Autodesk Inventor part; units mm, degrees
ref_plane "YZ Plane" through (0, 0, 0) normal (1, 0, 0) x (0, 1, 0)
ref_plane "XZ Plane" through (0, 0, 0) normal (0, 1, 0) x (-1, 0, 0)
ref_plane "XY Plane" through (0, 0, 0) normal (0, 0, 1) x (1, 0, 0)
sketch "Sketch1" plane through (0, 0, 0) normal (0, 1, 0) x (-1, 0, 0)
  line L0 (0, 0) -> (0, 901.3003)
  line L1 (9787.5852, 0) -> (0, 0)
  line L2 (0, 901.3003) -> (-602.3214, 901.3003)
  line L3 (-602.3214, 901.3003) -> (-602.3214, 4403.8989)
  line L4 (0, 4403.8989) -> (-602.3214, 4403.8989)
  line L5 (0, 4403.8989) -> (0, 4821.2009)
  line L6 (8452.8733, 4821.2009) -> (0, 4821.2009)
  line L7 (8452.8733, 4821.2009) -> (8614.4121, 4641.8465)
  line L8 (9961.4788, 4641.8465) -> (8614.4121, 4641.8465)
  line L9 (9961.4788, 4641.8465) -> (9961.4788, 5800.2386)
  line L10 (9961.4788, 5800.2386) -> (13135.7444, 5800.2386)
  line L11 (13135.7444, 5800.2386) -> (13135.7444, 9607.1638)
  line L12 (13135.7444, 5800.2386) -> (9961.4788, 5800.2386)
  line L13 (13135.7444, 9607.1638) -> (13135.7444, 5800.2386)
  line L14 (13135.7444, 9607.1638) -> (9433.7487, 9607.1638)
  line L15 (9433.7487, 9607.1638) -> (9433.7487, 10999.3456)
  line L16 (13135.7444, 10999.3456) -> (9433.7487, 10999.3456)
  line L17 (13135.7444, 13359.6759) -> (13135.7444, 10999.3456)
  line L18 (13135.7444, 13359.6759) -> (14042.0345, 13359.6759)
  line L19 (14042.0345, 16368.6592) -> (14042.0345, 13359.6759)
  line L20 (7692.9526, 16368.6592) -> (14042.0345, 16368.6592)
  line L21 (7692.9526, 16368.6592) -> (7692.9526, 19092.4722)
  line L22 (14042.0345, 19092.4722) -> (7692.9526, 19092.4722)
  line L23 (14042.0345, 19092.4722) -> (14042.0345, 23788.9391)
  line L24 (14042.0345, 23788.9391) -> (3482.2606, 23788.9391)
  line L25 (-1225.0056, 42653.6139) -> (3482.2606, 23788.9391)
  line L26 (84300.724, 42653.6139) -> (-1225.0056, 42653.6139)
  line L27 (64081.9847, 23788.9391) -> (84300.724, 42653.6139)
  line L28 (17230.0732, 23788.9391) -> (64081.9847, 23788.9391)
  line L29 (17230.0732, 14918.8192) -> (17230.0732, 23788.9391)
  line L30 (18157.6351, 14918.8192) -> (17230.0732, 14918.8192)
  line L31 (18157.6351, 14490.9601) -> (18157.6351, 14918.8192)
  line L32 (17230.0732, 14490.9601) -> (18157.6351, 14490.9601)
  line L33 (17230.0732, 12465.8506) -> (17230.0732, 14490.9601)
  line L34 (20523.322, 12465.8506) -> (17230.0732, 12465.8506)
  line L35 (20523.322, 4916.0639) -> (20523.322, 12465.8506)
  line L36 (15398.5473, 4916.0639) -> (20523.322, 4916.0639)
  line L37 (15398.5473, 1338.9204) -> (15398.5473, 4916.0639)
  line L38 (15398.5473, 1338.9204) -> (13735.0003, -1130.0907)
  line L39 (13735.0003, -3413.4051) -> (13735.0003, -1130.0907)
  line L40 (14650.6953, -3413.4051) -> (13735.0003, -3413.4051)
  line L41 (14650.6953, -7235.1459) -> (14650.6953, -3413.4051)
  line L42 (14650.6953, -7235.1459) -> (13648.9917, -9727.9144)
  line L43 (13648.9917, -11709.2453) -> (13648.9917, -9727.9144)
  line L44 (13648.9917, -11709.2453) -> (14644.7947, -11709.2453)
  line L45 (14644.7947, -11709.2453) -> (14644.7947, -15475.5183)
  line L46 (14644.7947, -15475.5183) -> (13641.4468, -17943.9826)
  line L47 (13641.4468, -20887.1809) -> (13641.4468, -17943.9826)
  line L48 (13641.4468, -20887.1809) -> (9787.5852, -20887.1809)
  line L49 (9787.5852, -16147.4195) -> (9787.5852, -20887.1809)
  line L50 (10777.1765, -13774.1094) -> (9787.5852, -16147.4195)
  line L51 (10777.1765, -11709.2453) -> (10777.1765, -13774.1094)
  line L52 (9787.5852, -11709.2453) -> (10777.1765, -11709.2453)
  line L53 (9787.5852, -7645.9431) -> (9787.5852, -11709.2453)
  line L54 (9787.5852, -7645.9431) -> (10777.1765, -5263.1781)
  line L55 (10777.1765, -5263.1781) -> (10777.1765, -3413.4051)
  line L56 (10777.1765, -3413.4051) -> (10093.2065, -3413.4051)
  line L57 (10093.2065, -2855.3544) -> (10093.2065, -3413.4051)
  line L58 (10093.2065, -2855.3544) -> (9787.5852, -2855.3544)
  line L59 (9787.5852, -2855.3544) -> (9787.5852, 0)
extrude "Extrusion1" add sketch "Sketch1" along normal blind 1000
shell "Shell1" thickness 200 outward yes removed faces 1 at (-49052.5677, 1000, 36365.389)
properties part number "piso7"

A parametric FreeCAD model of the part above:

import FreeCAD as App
import Part
import Sketcher
from FreeCAD import Vector
Q = App.Units.Quantity


def faces_at(feature, points):
    """Names of the faces that lie closest to the given points."""
    faces = feature.Shape.Faces
    near = lambda p: min(range(len(faces)), key=lambda i: faces[i].distToShape(Part.Vertex(*p))[0])
    return sorted({f"Face{near(p) + 1}" for p in points})


def add_polygon(sketch, points):
    """Adds a closed chain of lines whose ends are joined by coincident constraints."""
    first, n = sketch.GeometryCount, len(points)
    for a, b in zip(points, points[1:] + points[:1]):
        sketch.addGeometry(Part.LineSegment(App.Vector(*a, 0), App.Vector(*b, 0)), False)
    for i in range(n):
        sketch.addConstraint(Sketcher.Constraint("Coincident", first + i, 2, first + (i + 1) % n, 1))

doc = App.newDocument("Part")
body = doc.addObject("PartDesign::Body", "Body")

sketch1 = doc.addObject("Sketcher::SketchObject", "Sketch")
body.addObject(sketch1)
sketch1.AttachmentSupport = (doc.XZ_Plane, [""])
sketch1.MapMode = "FlatFace"
add_polygon(sketch1, [(0, 901.3003), (0, 0), (-9787.5852, 0), (-9787.5852, -2855.3544), (-10093.2065, -2855.3544), (-10093.2065, -3413.4051), (-10777.1765, -3413.4051), (-10777.1765, -5263.1781), (-9787.5852, -7645.9431), (-9787.5852, -11709.2453), (-10777.1765, -11709.2453), (-10777.1765, -13774.1094), (-9787.5852, -16147.4195), (-9787.5852, -20887.1809), (-13641.4468, -20887.1809), (-13641.4468, -17943.9826), (-14644.7947, -15475.5183), (-14644.7947, -11709.2453), (-13648.9917, -11709.2453), (-13648.9917, -9727.9144), (-14650.6953, -7235.1459), (-14650.6953, -3413.4051), (-13735.0003, -3413.4051), (-13735.0003, -1130.0907), (-15398.5473, 1338.9204), (-15398.5473, 4916.0639), (-20523.322, 4916.0639), (-20523.322, 12465.8506), (-17230.0732, 12465.8506), (-17230.0732, 14490.9601), (-18157.6351, 14490.9601), (-18157.6351, 14918.8192), (-17230.0732, 14918.8192), (-17230.0732, 23788.9391), (-64081.9847, 23788.9391), (-84300.724, 42653.6139), (1225.0056, 42653.6139), (-3482.2606, 23788.9391), (-14042.0345, 23788.9391), (-14042.0345, 19092.4722), (-7692.9526, 19092.4722), (-7692.9526, 16368.6592), (-14042.0345, 16368.6592), (-14042.0345, 13359.6759), (-13135.7444, 13359.6759), (-13135.7444, 10999.3456), (-9433.7487, 10999.3456), (-9433.7487, 9607.1638), (-13135.7444, 9607.1638), (-13135.7444, 5800.2386), (-9961.4788, 5800.2386), (-9961.4788, 4641.8465), (-8614.4121, 4641.8465), (-8452.8733, 4821.2009), (0, 4821.2009), (0, 4403.8989), (602.3214, 4403.8989), (602.3214, 901.3003)])
sketch1.addConstraint(Sketcher.Constraint("Vertical", 0))
sketch1.addConstraint(Sketcher.Constraint("Horizontal", 1))
sketch1.addConstraint(Sketcher.Constraint("Vertical", 2))
sketch1.addConstraint(Sketcher.Constraint("Horizontal", 3))
sketch1.addConstraint(Sketcher.Constraint("Vertical", 4))
sketch1.addConstraint(Sketcher.Constraint("Horizontal", 5))
sketch1.addConstraint(Sketcher.Constraint("Vertical", 6))
sketch1.addConstraint(Sketcher.Constraint("Vertical", 8))
sketch1.addConstraint(Sketcher.Constraint("Horizontal", 9))
sketch1.addConstraint(Sketcher.Constraint("Vertical", 10))
sketch1.addConstraint(Sketcher.Constraint("Vertical", 12))
sketch1.addConstraint(Sketcher.Constraint("Horizontal", 13))
sketch1.addConstraint(Sketcher.Constraint("Vertical", 14))
sketch1.addConstraint(Sketcher.Constraint("Vertical", 16))
sketch1.addConstraint(Sketcher.Constraint("Horizontal", 17))
sketch1.addConstraint(Sketcher.Constraint("Vertical", 18))
sketch1.addConstraint(Sketcher.Constraint("Vertical", 20))
sketch1.addConstraint(Sketcher.Constraint("Horizontal", 21))
sketch1.addConstraint(Sketcher.Constraint("Vertical", 22))
sketch1.addConstraint(Sketcher.Constraint("Vertical", 24))
sketch1.addConstraint(Sketcher.Constraint("Horizontal", 25))
sketch1.addConstraint(Sketcher.Constraint("Vertical", 26))
sketch1.addConstraint(Sketcher.Constraint("Horizontal", 27))
sketch1.addConstraint(Sketcher.Constraint("Vertical", 28))
sketch1.addConstraint(Sketcher.Constraint("Horizontal", 29))
sketch1.addConstraint(Sketcher.Constraint("Vertical", 30))
sketch1.addConstraint(Sketcher.Constraint("Horizontal", 31))
sketch1.addConstraint(Sketcher.Constraint("Vertical", 32))
sketch1.addConstraint(Sketcher.Constraint("Horizontal", 33))
sketch1.addConstraint(Sketcher.Constraint("Horizontal", 35))
sketch1.addConstraint(Sketcher.Constraint("Horizontal", 37))
sketch1.addConstraint(Sketcher.Constraint("Vertical", 38))
sketch1.addConstraint(Sketcher.Constraint("Horizontal", 39))
sketch1.addConstraint(Sketcher.Constraint("Vertical", 40))
sketch1.addConstraint(Sketcher.Constraint("Horizontal", 41))
sketch1.addConstraint(Sketcher.Constraint("Vertical", 42))
sketch1.addConstraint(Sketcher.Constraint("Horizontal", 43))
sketch1.addConstraint(Sketcher.Constraint("Vertical", 44))
sketch1.addConstraint(Sketcher.Constraint("Horizontal", 45))
sketch1.addConstraint(Sketcher.Constraint("Vertical", 46))
sketch1.addConstraint(Sketcher.Constraint("Horizontal", 47))
sketch1.addConstraint(Sketcher.Constraint("Vertical", 48))
sketch1.addConstraint(Sketcher.Constraint("Horizontal", 49))
sketch1.addConstraint(Sketcher.Constraint("Vertical", 50))
sketch1.addConstraint(Sketcher.Constraint("Horizontal", 51))
sketch1.addConstraint(Sketcher.Constraint("Horizontal", 53))
sketch1.addConstraint(Sketcher.Constraint("Vertical", 54))
sketch1.addConstraint(Sketcher.Constraint("Horizontal", 55))
sketch1.addConstraint(Sketcher.Constraint("Vertical", 56))
sketch1.addConstraint(Sketcher.Constraint("Horizontal", 57))
sketch1.addConstraint(Sketcher.Constraint("Coincident", 0, 2, -1, 1))
sketch1.addConstraint(Sketcher.Constraint("PointOnObject", 53, 2, -2))
sketch1.addConstraint(Sketcher.Constraint("DistanceX", 1, 2, 1, 1, Q("385.338 in")))
sketch1.addConstraint(Sketcher.Constraint("DistanceY", 50, 2, 50, 1, Q("45.606 in")))
sketch1.addConstraint(Sketcher.Constraint("Distance", 15, Q("104.905 in")))
sketch1.addConstraint(Sketcher.Constraint("DistanceX", 35, 1, 35, 2, Q("3367.1547 in")))
sketch1.addConstraint(Sketcher.Constraint("DistanceY", 4, 2, 4, 1, Q("21.9705 in")))
sketch1.addConstraint(Sketcher.Constraint("DistanceY", 6, 2, 6, 1, Q("72.8257 in")))
sketch1.addConstraint(Sketcher.Constraint("DistanceY", 26, 1, 26, 2, Q("297.2357 in")))
sketch1.addConstraint(Sketcher.Constraint("DistanceY", 42, 2, 42, 1, Q("118.4639 in")))
sketch1.addConstraint(Sketcher.Constraint("DistanceY", 44, 2, 44, 1, Q("92.9264 in")))
sketch1.addConstraint(Sketcher.Constraint("DistanceY", 46, 2, 46, 1, Q("54.8103 in")))
sketch1.addConstraint(Sketcher.Constraint("DistanceX", 7, 2, -1, 1, Q("385.338 in")))
sketch1.addConstraint(Sketcher.Constraint("DistanceX", 11, 2, -1, 1, Q("385.338 in")))
sketch1.addConstraint(Sketcher.Constraint("DistanceY", 14, 2, -1, 1, Q("706.456 in")))
sketch1.addConstraint(Sketcher.Constraint("DistanceX", 37, 2, -1, 1, Q("552.836 in")))
sketch1.addConstraint(Sketcher.Constraint("DistanceX", 41, 2, -1, 1, Q("552.836 in")))
sketch1.addConstraint(Sketcher.Constraint("DistanceX", 23, 2, 20, 2, Q("29.443 in")))
sketch1.addConstraint(Sketcher.Constraint("DistanceY", 40, 2, 36, 2, Q("292.137 in")))
sketch1.addConstraint(Sketcher.Constraint("DistanceX", 48, 2, 52, 2, Q("184.365 in")))
sketch1.addConstraint(Sketcher.Constraint("DistanceX", 3, 2, 3, 1, Q("305.6213 mm")))
sketch1.addConstraint(Sketcher.Constraint("DistanceX", 5, 2, 5, 1, Q("683.97 mm")))
sketch1.addConstraint(Sketcher.Constraint("DistanceX", 9, 2, 9, 1, Q("989.5913 mm")))
sketch1.addConstraint(Sketcher.Constraint("DistanceX", 13, 2, 13, 1, Q("3853.8616 mm")))
sketch1.addConstraint(Sketcher.Constraint("DistanceX", 17, 1, 17, 2, Q("995.803 mm")))
sketch1.addConstraint(Sketcher.Constraint("DistanceX", 21, 1, 21, 2, Q("915.695 mm")))
sketch1.addConstraint(Sketcher.Constraint("DistanceX", 25, 2, 25, 1, Q("5124.7747 mm")))
sketch1.addConstraint(Sketcher.Constraint("DistanceX", 27, 1, 27, 2, Q("3293.2488 mm")))
sketch1.addConstraint(Sketcher.Constraint("DistanceX", 29, 2, 29, 1, Q("36.518189 in")))
sketch1.addConstraint(Sketcher.Constraint("DistanceX", 31, 1, 31, 2, Q("36.518189 in")))
sketch1.addConstraint(Sketcher.Constraint("DistanceX", 33, 2, 33, 1, Q("46851.9115 mm")))
sketch1.addConstraint(Sketcher.Constraint("DistanceX", 37, 2, 37, 1, Q("10559.774 mm")))
sketch1.addConstraint(Sketcher.Constraint("DistanceX", 39, 1, 39, 2, Q("6349.082 mm")))
sketch1.addConstraint(Sketcher.Constraint("DistanceX", 43, 1, 43, 2, Q("35.6807087 in")))
sketch1.addConstraint(Sketcher.Constraint("DistanceX", 45, 1, 45, 2, Q("3701.9957 mm")))
sketch1.addConstraint(Sketcher.Constraint("DistanceX", 47, 2, 47, 1, Q("3701.9957 mm")))
sketch1.addConstraint(Sketcher.Constraint("DistanceX", 49, 1, 49, 2, Q("3174.2656 mm")))
sketch1.addConstraint(Sketcher.Constraint("DistanceX", 51, 1, 51, 2, Q("1347.0667 mm")))
sketch1.addConstraint(Sketcher.Constraint("DistanceX", 55, 1, 55, 2, Q("602.3214 mm")))
sketch1.addConstraint(Sketcher.Constraint("DistanceY", 0, 2, 0, 1, Q("901.3003 mm")))
sketch1.addConstraint(Sketcher.Constraint("DistanceY", 2, 2, 2, 1, Q("2855.3544 mm")))
sketch1.addConstraint(Sketcher.Constraint("DistanceY", 8, 2, 8, 1, Q("4063.3022 mm")))
sketch1.addConstraint(Sketcher.Constraint("DistanceY", 10, 2, 10, 1, Q("2064.864 mm")))
sketch1.addConstraint(Sketcher.Constraint("DistanceY", 12, 2, 12, 1, Q("4739.7614 mm")))
sketch1.addConstraint(Sketcher.Constraint("DistanceY", 14, 1, 14, 2, Q("2943.1983 mm")))
sketch1.addConstraint(Sketcher.Constraint("DistanceY", 16, 1, 16, 2, Q("3766.273 mm")))
sketch1.addConstraint(Sketcher.Constraint("DistanceY", 18, 1, 18, 2, Q("1981.331 mm")))
sketch1.addConstraint(Sketcher.Constraint("DistanceY", 20, 1, 20, 2, Q("3821.7408 mm")))
sketch1.addConstraint(Sketcher.Constraint("DistanceY", 22, 1, 22, 2, Q("2283.3144 mm")))
sketch1.addConstraint(Sketcher.Constraint("DistanceY", 24, 1, 24, 2, Q("3577.1435 mm")))
sketch1.addConstraint(Sketcher.Constraint("DistanceY", 28, 1, 28, 2, Q("2025.1095 mm")))
sketch1.addConstraint(Sketcher.Constraint("DistanceY", 30, 1, 30, 2, Q("427.859 mm")))
sketch1.addConstraint(Sketcher.Constraint("DistanceY", 32, 1, 32, 2, Q("8870.12 mm")))
sketch1.addConstraint(Sketcher.Constraint("DistanceY", 38, 2, 38, 1, Q("4696.467 mm")))
sketch1.addConstraint(Sketcher.Constraint("DistanceY", 48, 2, 48, 1, Q("3806.9252 mm")))
sketch1.addConstraint(Sketcher.Constraint("DistanceY", 54, 2, 54, 1, Q("417.302 mm")))
sketch1.addConstraint(Sketcher.Constraint("DistanceY", 56, 2, 56, 1, Q("3502.5986 mm")))
sketch1.addConstraint(Sketcher.Constraint("DistanceY", 8, 2, -1, 1, Q("460.9939 in")))
sketch1.addConstraint(Sketcher.Constraint("DistanceY", 16, 2, -1, 1, Q("460.9939 in")))
sketch1.addConstraint(Sketcher.Constraint("DistanceY", -1, 1, 23, 2, Q("52.7134 in")))
sketch1.addConstraint(Sketcher.Constraint("DistanceX", 25, 2, -1, 1, Q("808.0048 in")))
sketch1.addConstraint(Sketcher.Constraint("DistanceY", -1, 1, 36, 2, Q("936.5724 in")))
sketch1.addConstraint(Sketcher.Constraint("DistanceY", 18, 2, 19, 2, Q("98.1405 in")))
sketch1.addConstraint(Sketcher.Constraint("DistanceX", 34, 2, 32, 2, Q("2640.5768 in")))
sketch1.addConstraint(Sketcher.Constraint("DistanceY", 29, 2, 34, 2, Q("1108.7659 in")))
pad1 = doc.addObject("PartDesign::Pad", "Pad")
body.addObject(pad1)
pad1.Profile = sketch1
pad1.Length = 1000
pad1.Reversed = True
doc.recompute()

thickness = doc.addObject("PartDesign::Thickness", "Thickness")
body.addObject(thickness)
thickness.Base = (pad1, faces_at(pad1, [(-49052.568, 1000, 36365.389)]))
thickness.Value = 200
thickness.Reversed = False
thickness.Join = "Intersection"

doc.recompute()
